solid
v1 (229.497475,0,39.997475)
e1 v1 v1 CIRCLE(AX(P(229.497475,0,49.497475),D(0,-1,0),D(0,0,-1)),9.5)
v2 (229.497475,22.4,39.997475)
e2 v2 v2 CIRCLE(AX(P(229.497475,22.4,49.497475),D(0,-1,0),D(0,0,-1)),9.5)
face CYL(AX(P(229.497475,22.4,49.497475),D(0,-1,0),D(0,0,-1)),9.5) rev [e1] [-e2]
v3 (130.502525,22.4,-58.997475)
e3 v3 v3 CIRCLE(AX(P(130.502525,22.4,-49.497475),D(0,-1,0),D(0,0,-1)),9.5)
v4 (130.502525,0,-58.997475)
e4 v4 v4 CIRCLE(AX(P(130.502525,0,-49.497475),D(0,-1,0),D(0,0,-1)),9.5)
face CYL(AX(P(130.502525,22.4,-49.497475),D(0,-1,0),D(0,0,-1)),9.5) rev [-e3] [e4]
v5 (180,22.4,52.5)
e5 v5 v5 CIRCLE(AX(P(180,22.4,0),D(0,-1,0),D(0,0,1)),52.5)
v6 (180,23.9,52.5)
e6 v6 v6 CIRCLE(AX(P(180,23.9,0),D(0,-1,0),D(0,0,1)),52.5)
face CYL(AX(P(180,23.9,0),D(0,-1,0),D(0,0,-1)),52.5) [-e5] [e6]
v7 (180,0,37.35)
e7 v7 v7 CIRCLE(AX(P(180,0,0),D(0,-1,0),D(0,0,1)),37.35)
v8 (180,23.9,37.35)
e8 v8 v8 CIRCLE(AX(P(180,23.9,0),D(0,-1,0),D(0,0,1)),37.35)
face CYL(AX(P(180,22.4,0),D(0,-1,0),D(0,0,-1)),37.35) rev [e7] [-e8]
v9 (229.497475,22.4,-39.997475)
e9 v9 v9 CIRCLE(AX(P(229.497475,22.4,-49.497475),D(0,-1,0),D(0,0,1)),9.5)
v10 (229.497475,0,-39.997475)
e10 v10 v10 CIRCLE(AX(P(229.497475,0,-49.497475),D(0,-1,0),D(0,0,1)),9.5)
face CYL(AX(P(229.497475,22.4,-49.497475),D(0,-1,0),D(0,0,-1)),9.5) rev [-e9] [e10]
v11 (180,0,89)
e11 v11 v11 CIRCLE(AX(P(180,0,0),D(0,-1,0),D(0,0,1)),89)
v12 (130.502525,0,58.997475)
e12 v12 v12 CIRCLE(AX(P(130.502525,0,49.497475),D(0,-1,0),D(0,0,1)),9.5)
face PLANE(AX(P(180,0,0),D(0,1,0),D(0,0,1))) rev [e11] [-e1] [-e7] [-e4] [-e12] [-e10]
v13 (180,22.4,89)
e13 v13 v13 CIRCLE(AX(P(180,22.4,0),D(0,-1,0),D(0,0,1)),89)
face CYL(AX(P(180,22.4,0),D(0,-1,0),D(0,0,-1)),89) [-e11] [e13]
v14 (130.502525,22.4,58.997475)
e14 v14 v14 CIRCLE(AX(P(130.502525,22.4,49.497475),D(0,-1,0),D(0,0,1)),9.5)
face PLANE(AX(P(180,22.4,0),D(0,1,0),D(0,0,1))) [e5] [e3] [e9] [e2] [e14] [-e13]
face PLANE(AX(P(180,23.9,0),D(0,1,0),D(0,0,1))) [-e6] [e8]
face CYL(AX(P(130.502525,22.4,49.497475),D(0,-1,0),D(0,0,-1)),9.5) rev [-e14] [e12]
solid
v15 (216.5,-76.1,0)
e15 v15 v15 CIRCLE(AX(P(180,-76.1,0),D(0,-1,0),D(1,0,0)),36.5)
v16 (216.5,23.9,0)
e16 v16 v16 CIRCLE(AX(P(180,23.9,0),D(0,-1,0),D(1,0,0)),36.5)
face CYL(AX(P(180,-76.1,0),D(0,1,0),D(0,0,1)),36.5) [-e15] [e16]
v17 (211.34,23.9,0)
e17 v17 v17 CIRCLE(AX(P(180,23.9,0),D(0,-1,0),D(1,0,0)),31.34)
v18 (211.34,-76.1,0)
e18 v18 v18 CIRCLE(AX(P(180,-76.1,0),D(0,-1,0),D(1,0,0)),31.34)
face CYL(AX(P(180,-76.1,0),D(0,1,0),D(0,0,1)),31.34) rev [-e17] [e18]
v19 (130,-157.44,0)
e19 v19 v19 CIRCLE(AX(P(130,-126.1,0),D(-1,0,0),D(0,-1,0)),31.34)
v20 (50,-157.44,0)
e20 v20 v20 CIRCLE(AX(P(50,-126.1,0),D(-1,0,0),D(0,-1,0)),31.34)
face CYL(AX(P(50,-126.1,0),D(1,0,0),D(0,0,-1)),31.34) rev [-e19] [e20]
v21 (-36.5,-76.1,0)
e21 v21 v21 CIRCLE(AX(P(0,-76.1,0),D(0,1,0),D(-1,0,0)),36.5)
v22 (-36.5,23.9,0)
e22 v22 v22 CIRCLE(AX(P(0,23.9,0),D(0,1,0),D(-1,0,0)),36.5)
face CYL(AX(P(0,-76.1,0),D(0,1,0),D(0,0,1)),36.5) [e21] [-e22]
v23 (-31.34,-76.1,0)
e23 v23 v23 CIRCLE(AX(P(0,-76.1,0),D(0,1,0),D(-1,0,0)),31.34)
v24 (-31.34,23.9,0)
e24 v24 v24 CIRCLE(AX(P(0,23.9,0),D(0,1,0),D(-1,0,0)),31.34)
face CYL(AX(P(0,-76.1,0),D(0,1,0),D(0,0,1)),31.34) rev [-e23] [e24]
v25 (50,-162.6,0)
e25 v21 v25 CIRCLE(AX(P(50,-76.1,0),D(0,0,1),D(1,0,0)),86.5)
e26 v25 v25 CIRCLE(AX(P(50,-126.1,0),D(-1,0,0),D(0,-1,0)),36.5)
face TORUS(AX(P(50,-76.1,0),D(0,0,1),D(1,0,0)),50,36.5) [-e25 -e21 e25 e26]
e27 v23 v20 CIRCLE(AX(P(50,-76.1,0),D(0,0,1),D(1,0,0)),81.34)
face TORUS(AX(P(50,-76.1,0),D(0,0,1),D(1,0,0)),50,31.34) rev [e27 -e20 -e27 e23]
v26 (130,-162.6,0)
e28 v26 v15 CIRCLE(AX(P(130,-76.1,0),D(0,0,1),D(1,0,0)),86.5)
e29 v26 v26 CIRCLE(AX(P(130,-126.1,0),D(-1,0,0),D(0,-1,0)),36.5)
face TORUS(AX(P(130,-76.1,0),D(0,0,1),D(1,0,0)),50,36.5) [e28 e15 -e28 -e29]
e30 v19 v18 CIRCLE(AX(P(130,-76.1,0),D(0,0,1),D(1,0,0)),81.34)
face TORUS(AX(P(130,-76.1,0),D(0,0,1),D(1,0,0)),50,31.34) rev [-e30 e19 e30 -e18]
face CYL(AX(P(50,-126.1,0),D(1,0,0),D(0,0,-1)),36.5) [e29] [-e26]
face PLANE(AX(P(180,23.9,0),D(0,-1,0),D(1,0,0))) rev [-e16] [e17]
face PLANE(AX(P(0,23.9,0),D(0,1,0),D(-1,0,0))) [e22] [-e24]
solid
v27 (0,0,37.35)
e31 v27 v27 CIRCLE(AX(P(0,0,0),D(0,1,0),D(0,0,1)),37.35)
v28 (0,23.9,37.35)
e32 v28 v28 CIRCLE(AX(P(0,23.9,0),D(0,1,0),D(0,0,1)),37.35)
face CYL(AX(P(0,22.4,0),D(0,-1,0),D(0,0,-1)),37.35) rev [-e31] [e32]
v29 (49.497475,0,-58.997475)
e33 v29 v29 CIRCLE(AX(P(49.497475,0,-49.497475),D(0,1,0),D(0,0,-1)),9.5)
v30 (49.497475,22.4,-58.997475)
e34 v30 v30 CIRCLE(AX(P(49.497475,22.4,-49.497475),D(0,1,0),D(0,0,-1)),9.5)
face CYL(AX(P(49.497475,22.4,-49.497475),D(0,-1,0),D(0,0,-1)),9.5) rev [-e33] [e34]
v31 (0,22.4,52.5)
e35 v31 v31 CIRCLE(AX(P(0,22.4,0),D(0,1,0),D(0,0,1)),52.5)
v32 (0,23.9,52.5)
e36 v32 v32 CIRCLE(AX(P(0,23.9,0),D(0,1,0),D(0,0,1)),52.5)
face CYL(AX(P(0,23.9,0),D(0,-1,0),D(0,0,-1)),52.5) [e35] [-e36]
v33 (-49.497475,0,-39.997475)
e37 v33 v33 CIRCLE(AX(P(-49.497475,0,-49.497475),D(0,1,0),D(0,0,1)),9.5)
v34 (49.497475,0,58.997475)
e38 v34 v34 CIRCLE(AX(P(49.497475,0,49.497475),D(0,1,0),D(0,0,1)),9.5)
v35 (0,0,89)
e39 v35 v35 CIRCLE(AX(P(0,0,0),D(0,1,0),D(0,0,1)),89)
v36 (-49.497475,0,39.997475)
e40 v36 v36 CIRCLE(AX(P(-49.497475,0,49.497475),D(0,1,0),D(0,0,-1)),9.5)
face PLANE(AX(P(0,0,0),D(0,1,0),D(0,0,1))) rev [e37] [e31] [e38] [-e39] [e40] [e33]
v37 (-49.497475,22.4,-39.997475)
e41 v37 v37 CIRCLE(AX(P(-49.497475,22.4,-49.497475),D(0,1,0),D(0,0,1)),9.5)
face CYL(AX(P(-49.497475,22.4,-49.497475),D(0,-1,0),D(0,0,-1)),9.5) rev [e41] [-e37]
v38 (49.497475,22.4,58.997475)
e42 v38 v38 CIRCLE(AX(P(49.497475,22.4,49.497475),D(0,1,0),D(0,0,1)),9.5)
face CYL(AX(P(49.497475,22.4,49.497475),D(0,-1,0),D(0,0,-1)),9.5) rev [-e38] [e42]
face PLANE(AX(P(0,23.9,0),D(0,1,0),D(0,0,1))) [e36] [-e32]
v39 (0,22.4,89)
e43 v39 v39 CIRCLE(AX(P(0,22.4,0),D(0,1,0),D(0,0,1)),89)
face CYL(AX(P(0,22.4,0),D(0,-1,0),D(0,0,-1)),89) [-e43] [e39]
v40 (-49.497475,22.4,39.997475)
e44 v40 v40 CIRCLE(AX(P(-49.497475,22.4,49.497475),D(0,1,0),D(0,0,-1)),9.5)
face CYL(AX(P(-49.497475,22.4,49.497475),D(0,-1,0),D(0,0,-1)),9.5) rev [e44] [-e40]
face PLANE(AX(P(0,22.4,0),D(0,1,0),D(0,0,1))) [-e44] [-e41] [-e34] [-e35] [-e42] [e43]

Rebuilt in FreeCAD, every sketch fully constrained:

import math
import FreeCAD as App
import Part
import Sketcher
from FreeCAD import Vector

doc = App.newDocument("Part")
body = doc.addObject("PartDesign::Body", "Body")

# Sketch on XZ plane
sketch1 = body.newObject("Sketcher::SketchObject", "Sketch")
sketch1.AttachmentSupport = (doc.getObject("XZ_Plane"), [""])
sketch1.MapMode = "FlatFace"
sketch1.addGeometry([
    Part.Circle(Vector(0, 0, 0), Vector(0, 0, 1), 89),  # 0
    Part.Circle(Vector(-49, -49, 0), Vector(0, 0, 1), 10),  # 1
    Part.Circle(Vector(-49, 49, 0), Vector(0, 0, 1), 10),  # 2
    Part.Circle(Vector(49, -49, 0), Vector(0, 0, 1), 10),  # 3
    Part.Circle(Vector(0, 0, 0), Vector(0, 0, 1), 37),  # 4
    Part.Circle(Vector(49, 49, 0), Vector(0, 0, 1), 10),  # 5
], False)
sketch1.addConstraint([
    Sketcher.Constraint("Coincident", 0, 3, -1, 1),
    Sketcher.Constraint("Coincident", 4, 3, -1, 1),
    Sketcher.Constraint("Equal", 1, 2),
    Sketcher.Constraint("Equal", 2, 3),
    Sketcher.Constraint("Equal", 3, 5),
    Sketcher.Constraint("Symmetric", 2, 3, 3, 3, -1, 1),
    Sketcher.Constraint("Symmetric", 1, 3, 5, 3, -1, 1),
    Sketcher.Constraint("Symmetric", 1, 3, 3, 3, -2),
    Sketcher.Constraint("Diameter", 0, 178.0),
    Sketcher.Constraint("Diameter", 1, 19.0),
    Sketcher.Constraint("Diameter", 4, 74.7),
    Sketcher.Constraint("DistanceY", 1, 3, 2, 3, 98.994949),
    Sketcher.Constraint("DistanceX", 1, 3, 3, 3, 98.994949),
])
pad1 = body.newObject("PartDesign::Pad", "Pad")
pad1.Profile = sketch1
pad1.Length = 22.4
pad1.Reversed = True

# Sketch on XZ plane
sketch2 = body.newObject("Sketcher::SketchObject", "Sketch001")
sketch2.AttachmentSupport = (doc.getObject("XZ_Plane"), [""])
sketch2.MapMode = "FlatFace"
sketch2.AttachmentOffset = App.Placement(Vector(0, 0, -22.4), App.Rotation())
sketch2.addGeometry([
    Part.Circle(Vector(0, 0, 0), Vector(0, 0, 1), 52),
    Part.Circle(Vector(0, 0, 0), Vector(0, 0, 1), 37),
], False)
sketch2.addConstraint([
    Sketcher.Constraint("Coincident", 0, 3, -1, 1),
    Sketcher.Constraint("Coincident", 1, 3, -1, 1),
    Sketcher.Constraint("Diameter", 0, 105.0),
    Sketcher.Constraint("Diameter", 1, 74.7),
])
pad2 = body.newObject("PartDesign::Pad", "Pad001")
pad2.Profile = sketch2
pad2.Length = 1.5
pad2.Reversed = True
body2 = doc.addObject("PartDesign::Body", "Body001")
doc.recompute()

mirroring = doc.addObject("Part::Mirroring", "Mirroring")
mirroring.Source = body
mirroring.Base = Vector(90, 0, 0)
mirroring.Normal = Vector(1, 0, 0)
body2.BaseFeature = mirroring
doc.recompute()
body3 = doc.addObject("PartDesign::Body", "Body002")

# Sketch on XZ plane
sketch3 = body3.newObject("Sketcher::SketchObject", "Sketch002")
sketch3.AttachmentSupport = (doc.getObject("XZ_Plane002"), [""])
sketch3.MapMode = "FlatFace"
sketch3.AttachmentOffset = App.Placement(Vector(0, 0, -23.9), App.Rotation())
sketch3.addGeometry([
    Part.Circle(Vector(0, 0, 0), Vector(0, 0, 1), 36),
    Part.Circle(Vector(0, 0, 0), Vector(0, 0, 1), 31),
], False)
sketch3.addConstraint([
    Sketcher.Constraint("Coincident", 0, 3, -1, 1),
    Sketcher.Constraint("Coincident", 1, 3, -1, 1),
    Sketcher.Constraint("Diameter", 0, 73.0),
    Sketcher.Constraint("Diameter", 1, 62.68),
])

# Sketch on XY plane
sketch4 = body3.newObject("Sketcher::SketchObject", "Sketch003")
sketch4.AttachmentSupport = (doc.getObject("XY_Plane002"), [""])
sketch4.MapMode = "FlatFace"
sketch4.addGeometry([
    Part.LineSegment(Vector(0, 24, 0), Vector(0, -76, 0)),  # 0
    Part.ArcOfCircle(Part.Circle(Vector(50, -76, 0), Vector(0, 0, 1), 50), math.radians(-180), math.radians(-90)),  # 1
    Part.LineSegment(Vector(50, -126, 0), Vector(130, -126, 0)),  # 2
    Part.ArcOfCircle(Part.Circle(Vector(130, -76, 0), Vector(0, 0, 1), 50), math.radians(-90), math.radians(0)),  # 3
    Part.LineSegment(Vector(180, -76, 0), Vector(180, 24, 0)),  # 4
], False)
sketch4.addConstraint([
    Sketcher.Constraint("Tangent", 0, 2, 1, 1),
    Sketcher.Constraint("Tangent", 1, 2, 2, 1),
    Sketcher.Constraint("Tangent", 2, 2, 3, 1),
    Sketcher.Constraint("Tangent", 3, 2, 4, 1),
    Sketcher.Constraint("Vertical", 0),
    Sketcher.Constraint("Horizontal", 2),
    Sketcher.Constraint("Vertical", 4),
    Sketcher.Constraint("Equal", 1, 3),
    Sketcher.Constraint("PointOnObject", 0, 1, -2),
    Sketcher.Constraint("Horizontal", 0, 1, 4, 2),
    Sketcher.Constraint("Radius", 1, 50.0),
    Sketcher.Constraint("DistanceX", 2, 1, 2, 2, 80.0),
    Sketcher.Constraint("DistanceY", 0, 2, 0, 1, 100.0),
    Sketcher.Constraint("DistanceY", 1, 3, -1, 1, 76.1),
])
doc.recompute()

additivepipe = body3.newObject("PartDesign::AdditivePipe", "AdditivePipe")
additivepipe.Profile = sketch3
additivepipe.Spine = (sketch4, ["Edge1", "Edge2", "Edge3", "Edge4", "Edge5"])
mirroring.Visibility = False

doc.recompute()
